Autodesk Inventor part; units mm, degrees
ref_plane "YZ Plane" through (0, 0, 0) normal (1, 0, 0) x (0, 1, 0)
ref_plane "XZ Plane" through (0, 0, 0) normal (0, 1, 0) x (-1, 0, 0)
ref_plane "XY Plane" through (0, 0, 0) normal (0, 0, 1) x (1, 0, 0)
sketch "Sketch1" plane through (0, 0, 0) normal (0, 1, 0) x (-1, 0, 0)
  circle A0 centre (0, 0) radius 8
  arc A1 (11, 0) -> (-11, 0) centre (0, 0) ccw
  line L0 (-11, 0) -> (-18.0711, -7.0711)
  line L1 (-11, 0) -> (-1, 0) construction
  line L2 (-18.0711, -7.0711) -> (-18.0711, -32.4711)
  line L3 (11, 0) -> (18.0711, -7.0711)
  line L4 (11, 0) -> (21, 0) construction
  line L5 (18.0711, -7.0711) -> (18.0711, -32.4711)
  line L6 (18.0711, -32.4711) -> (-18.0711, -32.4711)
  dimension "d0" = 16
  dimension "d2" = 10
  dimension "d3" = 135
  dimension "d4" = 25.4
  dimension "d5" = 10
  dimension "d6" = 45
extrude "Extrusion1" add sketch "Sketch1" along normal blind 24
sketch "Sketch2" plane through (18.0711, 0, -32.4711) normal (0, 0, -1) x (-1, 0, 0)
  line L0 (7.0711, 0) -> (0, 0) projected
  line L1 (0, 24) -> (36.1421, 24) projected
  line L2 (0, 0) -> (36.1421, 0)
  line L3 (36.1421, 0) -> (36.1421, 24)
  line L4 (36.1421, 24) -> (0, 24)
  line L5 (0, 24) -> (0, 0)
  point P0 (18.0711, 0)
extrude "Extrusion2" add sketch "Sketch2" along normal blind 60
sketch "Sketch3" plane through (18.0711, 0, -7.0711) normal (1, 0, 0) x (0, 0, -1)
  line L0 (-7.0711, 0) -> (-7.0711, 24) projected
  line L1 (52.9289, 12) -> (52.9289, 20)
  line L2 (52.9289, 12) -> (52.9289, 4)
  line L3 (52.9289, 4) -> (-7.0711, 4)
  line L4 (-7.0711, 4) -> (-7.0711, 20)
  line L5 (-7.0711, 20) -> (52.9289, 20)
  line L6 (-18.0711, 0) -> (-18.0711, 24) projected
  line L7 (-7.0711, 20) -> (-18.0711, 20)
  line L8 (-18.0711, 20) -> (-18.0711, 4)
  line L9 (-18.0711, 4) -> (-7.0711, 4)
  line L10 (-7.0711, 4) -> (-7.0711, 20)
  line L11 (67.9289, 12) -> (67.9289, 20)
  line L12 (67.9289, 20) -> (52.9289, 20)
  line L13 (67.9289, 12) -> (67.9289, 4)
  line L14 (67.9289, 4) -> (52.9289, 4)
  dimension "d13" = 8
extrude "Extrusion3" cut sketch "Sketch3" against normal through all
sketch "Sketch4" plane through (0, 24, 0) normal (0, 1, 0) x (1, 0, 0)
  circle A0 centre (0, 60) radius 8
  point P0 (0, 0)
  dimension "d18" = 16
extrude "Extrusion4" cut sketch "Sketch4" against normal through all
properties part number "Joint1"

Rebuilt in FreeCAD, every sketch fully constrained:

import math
import FreeCAD as App
import Part
import Sketcher
from FreeCAD import Vector
Q = App.Units.Quantity


def add_polygon(sketch, points):
    """Adds a closed chain of lines whose ends are joined by coincident constraints."""
    first, n = sketch.GeometryCount, len(points)
    for a, b in zip(points, points[1:] + points[:1]):
        sketch.addGeometry(Part.LineSegment(App.Vector(*a, 0), App.Vector(*b, 0)), False)
    for i in range(n):
        sketch.addConstraint(Sketcher.Constraint("Coincident", first + i, 2, first + (i + 1) % n, 1))

doc = App.newDocument("Part")
body = doc.addObject("PartDesign::Body", "Body")

# Sketch on XZ plane
sketch1 = doc.addObject("Sketcher::SketchObject", "Sketch")
body.addObject(sketch1)
sketch1.AttachmentSupport = (doc.XZ_Plane, [""])
sketch1.MapMode = "FlatFace"
sketch1.addGeometry([
    Part.LineSegment(Vector(-18, -7, 0), Vector(-11, 0, 0)),  # 0
    Part.ArcOfCircle(Part.Circle(Vector(0, 0, 0), Vector(0, 0, 1), 11), math.radians(0), math.radians(180)),  # 1
    Part.LineSegment(Vector(11, 0, 0), Vector(18, -7, 0)),  # 2
    Part.LineSegment(Vector(18, -7, 0), Vector(18, -32, 0)),  # 3
    Part.LineSegment(Vector(18, -32, 0), Vector(-18, -32, 0)),  # 4
    Part.LineSegment(Vector(-18, -32, 0), Vector(-18, -7, 0)),  # 5
    Part.Circle(Vector(0, 0, 0), Vector(0, 0, 1), 8),  # 6
], False)
sketch1.addConstraint([
    Sketcher.Constraint("Coincident", 0, 2, 1, 2),
    Sketcher.Constraint("Coincident", 1, 1, 2, 1),
    Sketcher.Constraint("Coincident", 2, 2, 3, 1),
    Sketcher.Constraint("Coincident", 3, 2, 4, 1),
    Sketcher.Constraint("Coincident", 4, 2, 5, 1),
    Sketcher.Constraint("Coincident", 5, 2, 0, 1),
    Sketcher.Constraint("Vertical", 3),
    Sketcher.Constraint("Horizontal", 4),
    Sketcher.Constraint("Vertical", 5),
    Sketcher.Constraint("Coincident", 1, 3, -1, 1),
    Sketcher.Constraint("Coincident", 6, 3, -1, 1),
    Sketcher.Constraint("Symmetric", 2, 2, 5, 2, -2),
    Sketcher.Constraint("PointOnObject", 0, 2, -1),
    Sketcher.Constraint("PointOnObject", 1, 1, -1),
    Sketcher.Constraint("Perpendicular", 0, 2),
    Sketcher.Constraint("Diameter", 6, Q("16 mm")),
    Sketcher.Constraint("Distance", 0, Q("10 mm")),
    Sketcher.Constraint("DistanceY", 3, 2, 3, 1, Q("25.4 mm")),
    Sketcher.Constraint("Radius", 1, Q("11 mm")),
])
pad1 = doc.addObject("PartDesign::Pad", "Pad")
body.addObject(pad1)
pad1.Profile = sketch1
pad1.Length = 24
pad1.Reversed = True

# Sketch on XY plane
sketch2 = doc.addObject("Sketcher::SketchObject", "Sketch001")
body.addObject(sketch2)
sketch2.AttachmentSupport = (doc.XY_Plane, [""])
sketch2.MapMode = "FlatFace"
sketch2.AttachmentOffset = App.Placement(Vector(0, 0, -32.4711), App.Rotation())
add_polygon(sketch2, [(18, 0), (-18, 0), (-18, 24), (18, 24)])  # lines 0-3
sketch2.addConstraint([
    Sketcher.Constraint("Horizontal", 0),
    Sketcher.Constraint("Vertical", 1),
    Sketcher.Constraint("Horizontal", 2),
    Sketcher.Constraint("Vertical", 3),
    Sketcher.Constraint("Symmetric", 0, 2, 3, 2, -1, 1),
    Sketcher.Constraint("DistanceY", 1, 1, 1, 2, Q("24 mm")),
    Sketcher.Constraint("DistanceX", 0, 2, 0, 1, Q("36.142 mm")),
])
pad2 = doc.addObject("PartDesign::Pad", "Pad001")
body.addObject(pad2)
pad2.Profile = sketch2
pad2.Length = 60
pad2.Reversed = True

# Sketch on YZ plane
sketch3 = doc.addObject("Sketcher::SketchObject", "Sketch002")
body.addObject(sketch3)
sketch3.AttachmentSupport = (doc.YZ_Plane, [""])
sketch3.MapMode = "FlatFace"
sketch3.AttachmentOffset = App.Placement(Vector(0, 0, 18.0711), App.Rotation())
add_polygon(sketch3, [(4, 11), (4, -75), (20, -75), (20, 11)])  # lines 0-3
sketch3.addConstraint([
    Sketcher.Constraint("Vertical", 0),
    Sketcher.Constraint("Horizontal", 1),
    Sketcher.Constraint("Vertical", 2),
    Sketcher.Constraint("Horizontal", 3),
    Sketcher.Constraint("DistanceX", 1, 1, 1, 2, Q("16 mm")),
    Sketcher.Constraint("DistanceY", 0, 2, 0, 1, Q("86 mm")),
    Sketcher.Constraint("DistanceX", -1, 1, 0, 2, Q("4 mm")),
    Sketcher.Constraint("DistanceY", 0, 2, -1, 1, Q("75 mm")),
])
pocket1 = doc.addObject("PartDesign::Pocket", "Pocket")
body.addObject(pocket1)
pocket1.Profile = sketch3
pocket1.Type = "ThroughAll"

# Sketch on XZ plane
sketch4 = doc.addObject("Sketcher::SketchObject", "Sketch003")
body.addObject(sketch4)
sketch4.AttachmentSupport = (doc.XZ_Plane, [""])
sketch4.MapMode = "FlatFace"
sketch4.AttachmentOffset = App.Placement(Vector(0, 0, -24), App.Rotation())
sketch4.addGeometry(Part.Circle(Vector(0, -60, 0), Vector(0, 0, 1), 8), False)
sketch4.addConstraint([
    Sketcher.Constraint("PointOnObject", 0, 3, -2),
    Sketcher.Constraint("Diameter", 0, Q("16 mm")),
    Sketcher.Constraint("DistanceY", 0, 3, -1, 1, Q("60 mm")),
])
pocket2 = doc.addObject("PartDesign::Pocket", "Pocket001")
body.addObject(pocket2)
pocket2.Profile = sketch4
pocket2.Type = "ThroughAll"
pocket2.Reversed = True

doc.recompute()
